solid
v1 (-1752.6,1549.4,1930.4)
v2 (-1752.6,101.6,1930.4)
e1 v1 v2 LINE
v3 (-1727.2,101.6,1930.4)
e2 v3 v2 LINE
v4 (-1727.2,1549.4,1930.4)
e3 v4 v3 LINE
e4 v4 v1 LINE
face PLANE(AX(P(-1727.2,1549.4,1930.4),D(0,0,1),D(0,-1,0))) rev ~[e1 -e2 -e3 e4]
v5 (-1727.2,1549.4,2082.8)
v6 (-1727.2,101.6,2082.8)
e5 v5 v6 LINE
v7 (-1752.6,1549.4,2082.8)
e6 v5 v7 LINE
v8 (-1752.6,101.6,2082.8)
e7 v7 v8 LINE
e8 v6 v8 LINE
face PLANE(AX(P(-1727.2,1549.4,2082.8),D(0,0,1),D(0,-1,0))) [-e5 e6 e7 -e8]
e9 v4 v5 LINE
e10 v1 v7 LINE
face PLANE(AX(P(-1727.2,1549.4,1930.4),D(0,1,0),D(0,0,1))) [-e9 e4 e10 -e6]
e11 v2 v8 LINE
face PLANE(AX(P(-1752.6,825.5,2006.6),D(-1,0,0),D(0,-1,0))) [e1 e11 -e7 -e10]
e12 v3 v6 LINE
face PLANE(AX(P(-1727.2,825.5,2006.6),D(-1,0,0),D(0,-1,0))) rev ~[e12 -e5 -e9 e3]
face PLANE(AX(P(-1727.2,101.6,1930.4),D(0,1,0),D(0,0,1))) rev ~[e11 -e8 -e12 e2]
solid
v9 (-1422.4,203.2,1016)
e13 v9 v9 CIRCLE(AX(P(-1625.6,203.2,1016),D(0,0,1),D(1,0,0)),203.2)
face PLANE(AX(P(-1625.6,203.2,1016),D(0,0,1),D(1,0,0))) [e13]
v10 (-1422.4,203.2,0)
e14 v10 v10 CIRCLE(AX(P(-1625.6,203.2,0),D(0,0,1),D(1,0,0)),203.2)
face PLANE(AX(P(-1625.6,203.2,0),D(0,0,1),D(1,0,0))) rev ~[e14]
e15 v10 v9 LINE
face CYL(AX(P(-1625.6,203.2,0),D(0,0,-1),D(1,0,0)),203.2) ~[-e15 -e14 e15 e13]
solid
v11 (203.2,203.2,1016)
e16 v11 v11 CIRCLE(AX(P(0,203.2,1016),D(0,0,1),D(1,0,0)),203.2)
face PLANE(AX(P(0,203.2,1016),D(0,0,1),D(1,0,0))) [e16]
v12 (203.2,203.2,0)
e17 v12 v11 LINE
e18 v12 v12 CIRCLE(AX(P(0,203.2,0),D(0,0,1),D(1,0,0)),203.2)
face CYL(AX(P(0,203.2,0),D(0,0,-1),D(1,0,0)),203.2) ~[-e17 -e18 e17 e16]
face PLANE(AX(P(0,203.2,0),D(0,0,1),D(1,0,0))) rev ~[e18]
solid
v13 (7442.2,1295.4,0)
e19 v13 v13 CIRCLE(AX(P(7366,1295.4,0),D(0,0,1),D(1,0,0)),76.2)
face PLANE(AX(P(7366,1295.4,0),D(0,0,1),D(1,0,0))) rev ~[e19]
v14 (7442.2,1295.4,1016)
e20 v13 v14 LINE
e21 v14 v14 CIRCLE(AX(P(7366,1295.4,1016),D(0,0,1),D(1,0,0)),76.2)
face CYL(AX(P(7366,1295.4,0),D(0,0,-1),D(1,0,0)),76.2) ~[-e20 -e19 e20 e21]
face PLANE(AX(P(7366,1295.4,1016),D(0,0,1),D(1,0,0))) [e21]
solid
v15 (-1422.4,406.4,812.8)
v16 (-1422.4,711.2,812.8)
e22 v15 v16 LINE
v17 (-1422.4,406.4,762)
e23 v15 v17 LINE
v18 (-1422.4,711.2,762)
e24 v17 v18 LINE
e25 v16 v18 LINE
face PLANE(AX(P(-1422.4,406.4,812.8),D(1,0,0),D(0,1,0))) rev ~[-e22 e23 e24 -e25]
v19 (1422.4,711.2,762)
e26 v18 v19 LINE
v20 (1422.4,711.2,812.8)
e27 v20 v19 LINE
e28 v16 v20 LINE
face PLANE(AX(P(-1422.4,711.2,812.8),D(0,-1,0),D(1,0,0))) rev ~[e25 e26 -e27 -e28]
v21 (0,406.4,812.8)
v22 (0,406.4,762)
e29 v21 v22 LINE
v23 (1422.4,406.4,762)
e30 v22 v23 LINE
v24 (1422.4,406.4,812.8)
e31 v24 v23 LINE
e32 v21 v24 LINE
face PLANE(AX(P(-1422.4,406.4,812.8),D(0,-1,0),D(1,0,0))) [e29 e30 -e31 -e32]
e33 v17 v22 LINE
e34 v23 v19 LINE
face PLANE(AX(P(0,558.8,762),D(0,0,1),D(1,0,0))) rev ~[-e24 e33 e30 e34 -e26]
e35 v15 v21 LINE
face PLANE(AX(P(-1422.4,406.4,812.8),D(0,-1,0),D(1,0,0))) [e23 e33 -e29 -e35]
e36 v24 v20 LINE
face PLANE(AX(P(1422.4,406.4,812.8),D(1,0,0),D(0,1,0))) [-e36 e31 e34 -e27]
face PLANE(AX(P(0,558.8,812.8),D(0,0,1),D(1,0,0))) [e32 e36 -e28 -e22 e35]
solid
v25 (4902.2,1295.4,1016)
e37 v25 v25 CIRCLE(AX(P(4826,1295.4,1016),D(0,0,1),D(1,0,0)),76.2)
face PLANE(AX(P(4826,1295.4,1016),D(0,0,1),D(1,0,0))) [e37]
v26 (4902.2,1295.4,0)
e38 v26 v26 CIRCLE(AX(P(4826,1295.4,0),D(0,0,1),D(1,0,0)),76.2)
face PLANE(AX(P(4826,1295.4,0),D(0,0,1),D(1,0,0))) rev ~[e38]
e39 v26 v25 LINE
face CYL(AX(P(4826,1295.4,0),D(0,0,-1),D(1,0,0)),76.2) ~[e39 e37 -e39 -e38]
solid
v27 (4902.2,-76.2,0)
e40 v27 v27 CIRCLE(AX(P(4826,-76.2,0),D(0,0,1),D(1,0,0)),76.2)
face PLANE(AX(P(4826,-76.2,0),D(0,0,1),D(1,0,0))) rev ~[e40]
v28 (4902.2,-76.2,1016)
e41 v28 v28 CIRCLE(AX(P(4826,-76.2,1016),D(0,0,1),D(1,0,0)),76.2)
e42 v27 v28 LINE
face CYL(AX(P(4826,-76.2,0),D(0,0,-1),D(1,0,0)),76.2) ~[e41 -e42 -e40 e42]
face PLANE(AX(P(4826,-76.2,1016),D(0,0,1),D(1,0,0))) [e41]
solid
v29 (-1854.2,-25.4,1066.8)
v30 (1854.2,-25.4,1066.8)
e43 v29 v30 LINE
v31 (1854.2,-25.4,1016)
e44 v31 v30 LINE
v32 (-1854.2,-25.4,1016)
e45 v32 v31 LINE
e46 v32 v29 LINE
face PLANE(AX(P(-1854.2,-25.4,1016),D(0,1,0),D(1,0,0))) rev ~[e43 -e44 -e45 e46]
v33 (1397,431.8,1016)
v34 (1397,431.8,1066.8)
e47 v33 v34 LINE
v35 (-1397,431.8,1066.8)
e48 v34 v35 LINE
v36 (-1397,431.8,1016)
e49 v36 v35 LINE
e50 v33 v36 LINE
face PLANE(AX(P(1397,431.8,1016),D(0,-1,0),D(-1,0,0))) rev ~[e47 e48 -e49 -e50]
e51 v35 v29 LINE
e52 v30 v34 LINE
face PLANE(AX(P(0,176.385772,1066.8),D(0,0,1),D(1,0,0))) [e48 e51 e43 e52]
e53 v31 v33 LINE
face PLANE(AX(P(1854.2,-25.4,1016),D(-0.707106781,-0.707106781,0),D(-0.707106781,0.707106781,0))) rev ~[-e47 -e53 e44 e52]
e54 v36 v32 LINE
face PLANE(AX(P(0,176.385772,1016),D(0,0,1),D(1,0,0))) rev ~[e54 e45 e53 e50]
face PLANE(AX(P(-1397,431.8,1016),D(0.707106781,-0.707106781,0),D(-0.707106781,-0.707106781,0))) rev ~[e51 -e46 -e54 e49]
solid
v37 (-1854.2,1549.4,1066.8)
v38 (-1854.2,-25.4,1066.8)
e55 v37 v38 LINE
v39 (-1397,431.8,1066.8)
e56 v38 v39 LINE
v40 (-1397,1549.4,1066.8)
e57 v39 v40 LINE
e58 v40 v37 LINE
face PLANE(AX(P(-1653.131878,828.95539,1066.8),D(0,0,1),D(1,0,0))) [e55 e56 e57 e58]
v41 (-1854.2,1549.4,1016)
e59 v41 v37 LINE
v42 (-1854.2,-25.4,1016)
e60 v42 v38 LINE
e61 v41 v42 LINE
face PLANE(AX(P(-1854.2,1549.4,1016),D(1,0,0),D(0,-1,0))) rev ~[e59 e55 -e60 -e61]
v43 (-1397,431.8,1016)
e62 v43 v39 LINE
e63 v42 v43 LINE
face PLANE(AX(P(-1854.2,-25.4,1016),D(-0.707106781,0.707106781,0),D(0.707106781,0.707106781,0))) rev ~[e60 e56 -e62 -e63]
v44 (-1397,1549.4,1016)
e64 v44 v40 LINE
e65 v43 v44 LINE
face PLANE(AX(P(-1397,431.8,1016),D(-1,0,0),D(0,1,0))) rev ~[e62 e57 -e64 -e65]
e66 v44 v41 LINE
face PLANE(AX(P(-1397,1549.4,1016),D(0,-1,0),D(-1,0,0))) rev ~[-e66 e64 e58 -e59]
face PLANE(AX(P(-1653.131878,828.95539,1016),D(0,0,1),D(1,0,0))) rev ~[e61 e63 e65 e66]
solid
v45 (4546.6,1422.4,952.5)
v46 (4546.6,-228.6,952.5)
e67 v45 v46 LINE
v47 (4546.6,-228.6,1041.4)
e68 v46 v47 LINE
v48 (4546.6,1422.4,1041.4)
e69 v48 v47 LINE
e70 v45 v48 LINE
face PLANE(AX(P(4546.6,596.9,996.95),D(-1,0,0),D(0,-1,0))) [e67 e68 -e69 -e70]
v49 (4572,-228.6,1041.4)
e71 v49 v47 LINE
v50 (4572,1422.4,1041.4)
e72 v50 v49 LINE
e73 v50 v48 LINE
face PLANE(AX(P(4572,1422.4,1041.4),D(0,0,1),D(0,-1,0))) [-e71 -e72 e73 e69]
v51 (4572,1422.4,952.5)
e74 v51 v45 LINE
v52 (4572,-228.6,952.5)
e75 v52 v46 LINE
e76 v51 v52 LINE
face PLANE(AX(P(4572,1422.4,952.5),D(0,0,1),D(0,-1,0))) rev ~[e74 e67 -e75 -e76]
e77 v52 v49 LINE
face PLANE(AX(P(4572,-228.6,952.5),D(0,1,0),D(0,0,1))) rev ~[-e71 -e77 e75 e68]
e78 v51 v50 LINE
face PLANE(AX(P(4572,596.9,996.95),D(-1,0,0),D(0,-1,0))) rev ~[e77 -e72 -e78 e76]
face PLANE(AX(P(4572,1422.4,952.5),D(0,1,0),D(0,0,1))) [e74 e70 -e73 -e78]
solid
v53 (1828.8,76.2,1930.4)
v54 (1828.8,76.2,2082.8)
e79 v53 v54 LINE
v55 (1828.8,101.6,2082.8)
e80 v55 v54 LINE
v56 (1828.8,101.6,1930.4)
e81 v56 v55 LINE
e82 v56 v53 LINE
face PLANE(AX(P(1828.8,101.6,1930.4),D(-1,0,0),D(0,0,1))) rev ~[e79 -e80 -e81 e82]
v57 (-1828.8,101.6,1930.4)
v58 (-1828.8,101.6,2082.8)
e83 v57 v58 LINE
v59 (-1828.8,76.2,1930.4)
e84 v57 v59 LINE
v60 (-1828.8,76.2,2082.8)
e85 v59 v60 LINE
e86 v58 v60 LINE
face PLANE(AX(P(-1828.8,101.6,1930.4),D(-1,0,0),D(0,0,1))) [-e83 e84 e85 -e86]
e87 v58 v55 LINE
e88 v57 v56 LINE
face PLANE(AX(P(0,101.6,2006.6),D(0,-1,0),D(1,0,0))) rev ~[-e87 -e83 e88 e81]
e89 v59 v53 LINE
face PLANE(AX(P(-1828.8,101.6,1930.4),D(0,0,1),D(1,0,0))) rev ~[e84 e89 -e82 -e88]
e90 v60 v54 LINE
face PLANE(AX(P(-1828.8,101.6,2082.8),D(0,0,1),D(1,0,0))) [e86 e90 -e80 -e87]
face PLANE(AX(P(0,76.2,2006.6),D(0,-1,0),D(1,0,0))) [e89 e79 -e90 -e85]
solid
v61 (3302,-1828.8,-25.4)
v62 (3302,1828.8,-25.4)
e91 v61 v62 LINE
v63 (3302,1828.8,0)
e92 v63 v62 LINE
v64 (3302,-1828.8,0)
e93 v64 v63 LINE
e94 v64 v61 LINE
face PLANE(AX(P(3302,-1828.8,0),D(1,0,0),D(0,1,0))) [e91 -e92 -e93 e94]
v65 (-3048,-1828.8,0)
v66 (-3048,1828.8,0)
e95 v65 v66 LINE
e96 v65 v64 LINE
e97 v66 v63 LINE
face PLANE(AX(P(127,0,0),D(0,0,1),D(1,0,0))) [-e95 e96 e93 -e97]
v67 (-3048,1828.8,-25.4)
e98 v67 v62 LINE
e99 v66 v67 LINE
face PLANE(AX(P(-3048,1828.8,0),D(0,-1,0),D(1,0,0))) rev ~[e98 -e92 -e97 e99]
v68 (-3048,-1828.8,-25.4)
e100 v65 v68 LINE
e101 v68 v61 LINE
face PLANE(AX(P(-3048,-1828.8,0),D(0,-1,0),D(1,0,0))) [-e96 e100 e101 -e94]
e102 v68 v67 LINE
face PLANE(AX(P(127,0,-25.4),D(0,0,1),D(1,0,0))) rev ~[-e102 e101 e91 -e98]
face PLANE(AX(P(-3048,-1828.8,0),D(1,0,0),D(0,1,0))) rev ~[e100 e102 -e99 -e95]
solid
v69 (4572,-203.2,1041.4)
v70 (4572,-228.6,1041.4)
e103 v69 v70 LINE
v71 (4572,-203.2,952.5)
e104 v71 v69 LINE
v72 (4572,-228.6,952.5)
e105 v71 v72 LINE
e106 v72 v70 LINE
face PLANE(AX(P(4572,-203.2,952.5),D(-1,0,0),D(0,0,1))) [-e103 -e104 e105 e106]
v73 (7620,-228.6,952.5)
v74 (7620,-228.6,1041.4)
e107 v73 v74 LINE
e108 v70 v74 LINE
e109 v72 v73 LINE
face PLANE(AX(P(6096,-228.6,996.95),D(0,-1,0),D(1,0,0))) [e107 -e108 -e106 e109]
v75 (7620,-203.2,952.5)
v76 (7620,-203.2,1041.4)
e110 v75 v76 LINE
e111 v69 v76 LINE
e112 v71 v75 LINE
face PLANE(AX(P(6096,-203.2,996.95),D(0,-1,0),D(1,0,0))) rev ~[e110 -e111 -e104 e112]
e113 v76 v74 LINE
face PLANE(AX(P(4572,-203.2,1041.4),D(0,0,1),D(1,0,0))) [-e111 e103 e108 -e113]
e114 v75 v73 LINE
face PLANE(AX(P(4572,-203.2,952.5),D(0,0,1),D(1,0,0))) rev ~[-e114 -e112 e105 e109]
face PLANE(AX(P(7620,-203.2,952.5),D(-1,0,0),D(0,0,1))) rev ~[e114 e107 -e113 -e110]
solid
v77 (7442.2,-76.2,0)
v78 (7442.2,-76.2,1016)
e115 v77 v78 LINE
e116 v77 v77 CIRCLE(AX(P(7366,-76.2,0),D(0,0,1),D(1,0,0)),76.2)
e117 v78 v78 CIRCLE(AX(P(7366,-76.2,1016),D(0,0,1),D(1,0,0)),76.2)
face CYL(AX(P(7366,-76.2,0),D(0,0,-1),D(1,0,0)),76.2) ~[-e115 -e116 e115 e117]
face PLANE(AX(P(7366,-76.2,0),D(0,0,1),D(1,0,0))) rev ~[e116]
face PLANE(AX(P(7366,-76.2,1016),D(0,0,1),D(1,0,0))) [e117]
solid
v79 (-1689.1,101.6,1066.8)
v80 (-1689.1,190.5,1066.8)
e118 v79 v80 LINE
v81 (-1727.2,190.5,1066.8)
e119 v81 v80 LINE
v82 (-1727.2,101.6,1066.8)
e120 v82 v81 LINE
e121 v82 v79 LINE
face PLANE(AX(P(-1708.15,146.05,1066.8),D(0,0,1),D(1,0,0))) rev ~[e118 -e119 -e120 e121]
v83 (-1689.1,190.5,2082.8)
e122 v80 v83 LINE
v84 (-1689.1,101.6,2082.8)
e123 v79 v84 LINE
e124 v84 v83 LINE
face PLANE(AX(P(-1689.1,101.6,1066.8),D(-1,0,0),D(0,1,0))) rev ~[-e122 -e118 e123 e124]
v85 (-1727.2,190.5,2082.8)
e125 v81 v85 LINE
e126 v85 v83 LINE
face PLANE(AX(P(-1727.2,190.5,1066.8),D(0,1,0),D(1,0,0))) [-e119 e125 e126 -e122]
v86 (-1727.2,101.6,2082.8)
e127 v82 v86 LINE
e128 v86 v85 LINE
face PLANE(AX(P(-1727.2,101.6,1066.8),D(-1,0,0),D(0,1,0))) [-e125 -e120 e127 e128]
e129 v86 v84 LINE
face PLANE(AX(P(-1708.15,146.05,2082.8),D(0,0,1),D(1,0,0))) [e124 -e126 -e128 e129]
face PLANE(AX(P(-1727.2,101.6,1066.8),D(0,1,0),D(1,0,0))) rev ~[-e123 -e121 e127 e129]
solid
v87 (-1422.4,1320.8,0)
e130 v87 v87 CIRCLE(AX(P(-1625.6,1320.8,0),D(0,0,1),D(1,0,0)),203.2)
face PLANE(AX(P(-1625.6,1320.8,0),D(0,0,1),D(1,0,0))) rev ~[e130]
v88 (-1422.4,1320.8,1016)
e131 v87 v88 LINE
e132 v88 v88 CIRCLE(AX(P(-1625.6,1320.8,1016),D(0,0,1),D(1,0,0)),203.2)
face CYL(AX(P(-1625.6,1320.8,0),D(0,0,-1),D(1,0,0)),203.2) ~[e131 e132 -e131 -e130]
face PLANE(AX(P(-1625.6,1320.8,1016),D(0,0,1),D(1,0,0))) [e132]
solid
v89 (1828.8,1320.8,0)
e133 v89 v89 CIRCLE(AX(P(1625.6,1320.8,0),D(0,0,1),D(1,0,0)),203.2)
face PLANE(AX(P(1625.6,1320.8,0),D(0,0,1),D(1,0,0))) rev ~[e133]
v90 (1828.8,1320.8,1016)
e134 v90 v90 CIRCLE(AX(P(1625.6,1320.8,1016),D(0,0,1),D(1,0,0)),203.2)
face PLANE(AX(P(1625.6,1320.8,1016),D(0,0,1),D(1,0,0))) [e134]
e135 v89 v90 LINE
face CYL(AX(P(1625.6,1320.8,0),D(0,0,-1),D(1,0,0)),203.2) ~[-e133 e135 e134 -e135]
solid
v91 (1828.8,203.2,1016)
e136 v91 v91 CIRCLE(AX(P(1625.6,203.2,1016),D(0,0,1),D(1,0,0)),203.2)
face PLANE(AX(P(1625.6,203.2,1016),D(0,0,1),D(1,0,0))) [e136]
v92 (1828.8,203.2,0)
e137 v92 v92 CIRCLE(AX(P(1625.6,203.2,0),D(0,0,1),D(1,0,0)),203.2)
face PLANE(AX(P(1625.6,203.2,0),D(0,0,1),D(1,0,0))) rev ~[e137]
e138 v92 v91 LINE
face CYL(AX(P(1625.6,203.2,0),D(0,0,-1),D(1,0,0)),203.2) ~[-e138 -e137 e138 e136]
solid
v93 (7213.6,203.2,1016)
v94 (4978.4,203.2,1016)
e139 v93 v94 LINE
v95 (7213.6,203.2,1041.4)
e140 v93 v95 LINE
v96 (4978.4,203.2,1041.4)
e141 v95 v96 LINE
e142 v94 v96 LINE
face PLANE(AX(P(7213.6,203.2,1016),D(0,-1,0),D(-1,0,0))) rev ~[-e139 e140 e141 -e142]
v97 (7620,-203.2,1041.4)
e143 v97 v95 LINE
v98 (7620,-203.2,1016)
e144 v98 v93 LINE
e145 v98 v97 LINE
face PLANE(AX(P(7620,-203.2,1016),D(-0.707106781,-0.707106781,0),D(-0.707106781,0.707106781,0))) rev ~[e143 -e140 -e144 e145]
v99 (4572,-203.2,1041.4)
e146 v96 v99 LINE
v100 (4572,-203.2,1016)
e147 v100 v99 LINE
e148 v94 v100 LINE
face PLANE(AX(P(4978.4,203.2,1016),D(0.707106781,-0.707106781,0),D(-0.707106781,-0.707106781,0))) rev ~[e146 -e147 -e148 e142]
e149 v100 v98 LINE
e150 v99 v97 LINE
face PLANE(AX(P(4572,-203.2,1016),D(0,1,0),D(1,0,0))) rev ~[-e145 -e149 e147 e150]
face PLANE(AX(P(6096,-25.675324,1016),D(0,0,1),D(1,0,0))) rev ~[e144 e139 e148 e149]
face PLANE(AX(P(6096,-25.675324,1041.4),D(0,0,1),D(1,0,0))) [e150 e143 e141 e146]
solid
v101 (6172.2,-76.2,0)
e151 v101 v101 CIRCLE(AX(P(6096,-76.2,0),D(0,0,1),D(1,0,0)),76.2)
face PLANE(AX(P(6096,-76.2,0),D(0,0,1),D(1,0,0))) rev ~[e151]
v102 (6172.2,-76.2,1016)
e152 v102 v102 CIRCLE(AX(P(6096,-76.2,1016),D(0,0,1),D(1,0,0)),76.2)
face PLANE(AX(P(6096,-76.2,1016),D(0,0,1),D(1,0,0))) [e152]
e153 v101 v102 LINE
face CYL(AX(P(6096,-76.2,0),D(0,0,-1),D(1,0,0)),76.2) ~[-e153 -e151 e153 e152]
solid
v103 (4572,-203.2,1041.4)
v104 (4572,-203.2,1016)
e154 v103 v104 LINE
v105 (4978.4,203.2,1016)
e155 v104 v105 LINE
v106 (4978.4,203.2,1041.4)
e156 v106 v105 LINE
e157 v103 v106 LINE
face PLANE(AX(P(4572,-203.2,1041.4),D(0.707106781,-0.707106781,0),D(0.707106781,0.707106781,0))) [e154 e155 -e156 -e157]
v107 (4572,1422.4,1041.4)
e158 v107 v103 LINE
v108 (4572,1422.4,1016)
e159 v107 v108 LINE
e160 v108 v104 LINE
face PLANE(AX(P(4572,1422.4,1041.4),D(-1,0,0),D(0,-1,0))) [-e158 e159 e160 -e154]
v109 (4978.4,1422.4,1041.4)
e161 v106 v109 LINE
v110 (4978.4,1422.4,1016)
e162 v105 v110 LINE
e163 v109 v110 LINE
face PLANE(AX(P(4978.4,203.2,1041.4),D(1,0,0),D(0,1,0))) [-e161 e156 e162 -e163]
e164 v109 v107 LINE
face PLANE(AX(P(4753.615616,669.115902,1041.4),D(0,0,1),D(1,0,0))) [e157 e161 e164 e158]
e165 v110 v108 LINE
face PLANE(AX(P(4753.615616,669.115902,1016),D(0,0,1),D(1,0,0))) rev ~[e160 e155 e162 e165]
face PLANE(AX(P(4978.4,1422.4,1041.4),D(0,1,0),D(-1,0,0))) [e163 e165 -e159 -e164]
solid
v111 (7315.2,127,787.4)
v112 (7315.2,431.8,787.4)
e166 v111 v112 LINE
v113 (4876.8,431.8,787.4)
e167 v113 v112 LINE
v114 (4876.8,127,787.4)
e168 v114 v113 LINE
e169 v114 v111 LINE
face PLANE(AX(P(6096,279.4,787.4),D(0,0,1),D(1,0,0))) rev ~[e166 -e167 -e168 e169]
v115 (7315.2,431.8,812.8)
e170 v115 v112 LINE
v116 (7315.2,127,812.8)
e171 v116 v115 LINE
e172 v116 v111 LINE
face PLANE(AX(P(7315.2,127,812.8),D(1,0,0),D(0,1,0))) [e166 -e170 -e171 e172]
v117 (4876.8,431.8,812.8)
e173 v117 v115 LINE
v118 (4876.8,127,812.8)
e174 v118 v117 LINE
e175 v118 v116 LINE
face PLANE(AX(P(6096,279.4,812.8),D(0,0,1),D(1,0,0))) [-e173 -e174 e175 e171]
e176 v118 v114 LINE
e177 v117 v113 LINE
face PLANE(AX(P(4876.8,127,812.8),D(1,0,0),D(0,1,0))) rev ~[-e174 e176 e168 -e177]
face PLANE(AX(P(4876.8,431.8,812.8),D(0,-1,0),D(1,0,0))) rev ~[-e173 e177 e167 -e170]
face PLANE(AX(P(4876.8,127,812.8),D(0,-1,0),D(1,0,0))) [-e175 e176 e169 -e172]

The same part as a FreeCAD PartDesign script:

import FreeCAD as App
import Part
import Sketcher
from FreeCAD import Vector
Q = App.Units.Quantity

doc = App.newDocument("Part")
params = doc.addObject("Spreadsheet::Sheet", "Params")
for row, (alias, value) in enumerate([
    ("sketch1_width", "250 in"),
    ("sketch1_height", "144 in"),
    ("pad1_length", "1 in"),
    ("sketch2_diameter", "16 in"),
    ("pad2_length", "40 in"),
    ("sketch3_width", "112 in"),
    ("sketch3_height", "12 in"),
    ("pad3_length", "2 in"),
    ("sketch4_diameter", "16 in"),
    ("pad4_length", "40 in"),
    ("sketch5_diameter", "16 in"),
    ("pad5_length", "40 in"),
    ("sketch6_diameter", "16 in"),
    ("pad6_length", "40 in"),
    ("sketch7_diameter", "16 in"),
    ("pad7_length", "40 in"),
    ("sketch8_width", "146 in"),
    ("sketch8_width2", "110 in"),
    ("pad8_length", "2 in"),
    ("sketch9_width", "18 in"),
    ("sketch9_height", "44 in"),
    ("sketch9_height2", "62 in"),
    ("pad9_length", "2 in"),
    ("sketch10_width", "1.5 in"),
    ("sketch10_height", "3.5 in"),
    ("pad10_length", "40 in"),
    ("sketch11_width", "144 in"),
    ("sketch11_height", "6 in"),
    ("pad11_length", "1 in"),
    ("sketch12_width", "57 in"),
    ("sketch12_height", "6 in"),
    ("pad12_length", "1 in"),
    ("sketch13_diameter", "6 in"),
    ("pad13_length", "40 in"),
    ("sketch14_diameter", "6 in"),
    ("pad14_length", "40 in"),
    ("sketch15_diameter", "6 in"),
    ("pad15_length", "40 in"),
    ("sketch16_diameter", "6 in"),
    ("pad16_length", "40 in"),
    ("sketch17_diameter", "6 in"),
    ("pad17_length", "40 in"),
    ("sketch18_width", "120 in"),
    ("sketch18_width2", "88 in"),
    ("pad18_length", "1 in"),
    ("sketch19_width", "96 in"),
    ("sketch19_height", "12 in"),
    ("pad19_length", "1 in"),
    ("sketch20_width", "120 in"),
    ("sketch20_height", "3.5 in"),
    ("pad20_length", "1 in"),
    ("sketch21_width", "16 in"),
    ("sketch21_height", "48 in"),
    ("sketch21_height2", "64 in"),
    ("pad21_length", "1 in"),
    ("sketch22_width", "65 in"),
    ("sketch22_height", "3.5 in"),
    ("pad22_length", "1 in"),
], start=1):
    params.set(f"A{row}", alias)
    params.set(f"B{row}", "=" + value)
    params.setAlias(f"B{row}", alias)

body = doc.addObject("PartDesign::Body", "Body")

# Sketch on XY plane
sketch1 = body.newObject("Sketcher::SketchObject", "Sketch")
sketch1.AttachmentSupport = (doc.getObject("XY_Plane"), [""])
sketch1.MapMode = "FlatFace"
sketch1.addGeometry(Part.LineSegment(Vector(-3048, 1828.8, 0), Vector(-3048, -1828.8, 0)), False)
sketch1.addGeometry(Part.LineSegment(Vector(-3048, -1828.8, 0), Vector(3302, -1828.8, 0)), False)
sketch1.addGeometry(Part.LineSegment(Vector(3302, -1828.8, 0), Vector(3302, 1828.8, 0)), False)
sketch1.addGeometry(Part.LineSegment(Vector(3302, 1828.8, 0), Vector(-3048, 1828.8, 0)), False)
sketch1.addConstraint(Sketcher.Constraint("Coincident", 0, 2, 1, 1))
sketch1.addConstraint(Sketcher.Constraint("Coincident", 1, 2, 2, 1))
sketch1.addConstraint(Sketcher.Constraint("Coincident", 2, 2, 3, 1))
sketch1.addConstraint(Sketcher.Constraint("Coincident", 3, 2, 0, 1))
sketch1.addConstraint(Sketcher.Constraint("Vertical", 0))
sketch1.addConstraint(Sketcher.Constraint("Horizontal", 1))
sketch1.addConstraint(Sketcher.Constraint("Vertical", 2))
sketch1.addConstraint(Sketcher.Constraint("Horizontal", 3))
sketch1.addConstraint(Sketcher.Constraint("DistanceX", 1, 1, 1, 2, Q("250 in")))
sketch1.addConstraint(Sketcher.Constraint("DistanceY", 0, 2, 0, 1, Q("144 in")))
sketch1.addConstraint(Sketcher.Constraint("DistanceX", 0, 2, -1, 1, Q("120 in")))
sketch1.addConstraint(Sketcher.Constraint("DistanceY", 0, 2, -1, 1, Q("72 in")))
sketch1.setExpression("Constraints[8]", "Params.sketch1_width")
sketch1.setExpression("Constraints[9]", "Params.sketch1_height")
pad1 = body.newObject("PartDesign::Pad", "Pad")
pad1.Profile = sketch1
pad1.setExpression("Length", "Params.pad1_length")
pad1.Reversed = True
body2 = doc.addObject("PartDesign::Body", "Body001")
body2.AllowCompound = True

# Sketch on XY plane
sketch2 = body2.newObject("Sketcher::SketchObject", "Sketch001")
sketch2.AttachmentSupport = (doc.getObject("XY_Plane001"), [""])
sketch2.MapMode = "FlatFace"
sketch2.addGeometry(Part.Circle(Vector(0, 203.2, 0), Vector(0, 0, 1), 203.2), False)
sketch2.addConstraint(Sketcher.Constraint("PointOnObject", 0, 3, -2))
sketch2.addConstraint(Sketcher.Constraint("Diameter", 0, Q("16 in")))
sketch2.addConstraint(Sketcher.Constraint("DistanceY", -1, 1, 0, 3, Q("8 in")))
sketch2.setExpression("Constraints[1]", "Params.sketch2_diameter")
pad2 = body2.newObject("PartDesign::Pad", "Pad001")
pad2.Profile = sketch2
pad2.setExpression("Length", "Params.pad2_length")

# Sketch on XY plane
sketch3 = body2.newObject("Sketcher::SketchObject", "Sketch002")
sketch3.AttachmentSupport = (doc.getObject("XY_Plane001"), [""])
sketch3.MapMode = "FlatFace"
sketch3.AttachmentOffset = App.Placement(Vector(0, 0, 32 * 25.4), App.Rotation())
sketch3.addGeometry(Part.LineSegment(Vector(-1422.4, 711.2, 0), Vector(-1422.4, 406.4, 0)), False)
sketch3.addGeometry(Part.LineSegment(Vector(-1422.4, 406.4, 0), Vector(1422.4, 406.4, 0)), False)
sketch3.addGeometry(Part.LineSegment(Vector(1422.4, 406.4, 0), Vector(1422.4, 711.2, 0)), False)
sketch3.addGeometry(Part.LineSegment(Vector(1422.4, 711.2, 0), Vector(-1422.4, 711.2, 0)), False)
sketch3.addConstraint(Sketcher.Constraint("Coincident", 0, 2, 1, 1))
sketch3.addConstraint(Sketcher.Constraint("Coincident", 1, 2, 2, 1))
sketch3.addConstraint(Sketcher.Constraint("Coincident", 2, 2, 3, 1))
sketch3.addConstraint(Sketcher.Constraint("Coincident", 3, 2, 0, 1))
sketch3.addConstraint(Sketcher.Constraint("Vertical", 0))
sketch3.addConstraint(Sketcher.Constraint("Horizontal", 1))
sketch3.addConstraint(Sketcher.Constraint("Vertical", 2))
sketch3.addConstraint(Sketcher.Constraint("Horizontal", 3))
sketch3.addConstraint(Sketcher.Constraint("DistanceX", 1, 1, 1, 2, Q("112 in")))
sketch3.addConstraint(Sketcher.Constraint("DistanceY", 0, 2, 0, 1, Q("12 in")))
sketch3.addConstraint(Sketcher.Constraint("DistanceX", 0, 2, -1, 1, Q("56 in")))
sketch3.addConstraint(Sketcher.Constraint("DistanceY", -1, 1, 0, 2, Q("16 in")))
sketch3.setExpression("Constraints[8]", "Params.sketch3_width")
sketch3.setExpression("Constraints[9]", "Params.sketch3_height")
pad3 = body2.newObject("PartDesign::Pad", "Pad002")
pad3.Profile = sketch3
pad3.setExpression("Length", "Params.pad3_length")
pad3.Reversed = True
body3 = doc.addObject("PartDesign::Body", "Body002")

# Sketch on XY plane
sketch4 = body3.newObject("Sketcher::SketchObject", "Sketch003")
sketch4.AttachmentSupport = (doc.getObject("XY_Plane002"), [""])
sketch4.MapMode = "FlatFace"
sketch4.addGeometry(Part.Circle(Vector(1625.6, 203.2, 0), Vector(0, 0, 1), 203.2), False)
sketch4.addConstraint(Sketcher.Constraint("Diameter", 0, Q("16 in")))
sketch4.addConstraint(Sketcher.Constraint("DistanceX", -1, 1, 0, 3, Q("64 in")))
sketch4.addConstraint(Sketcher.Constraint("DistanceY", -1, 1, 0, 3, Q("8 in")))
sketch4.setExpression("Constraints[0]", "Params.sketch4_diameter")
pad4 = body3.newObject("PartDesign::Pad", "Pad003")
pad4.Profile = sketch4
pad4.setExpression("Length", "Params.pad4_length")
body4 = doc.addObject("PartDesign::Body", "Body003")

# Sketch on XY plane
sketch5 = body4.newObject("Sketcher::SketchObject", "Sketch004")
sketch5.AttachmentSupport = (doc.getObject("XY_Plane003"), [""])
sketch5.MapMode = "FlatFace"
sketch5.addGeometry(Part.Circle(Vector(-1625.6, 203.2, 0), Vector(0, 0, 1), 203.2), False)
sketch5.addConstraint(Sketcher.Constraint("Diameter", 0, Q("16 in")))
sketch5.addConstraint(Sketcher.Constraint("DistanceX", 0, 3, -1, 1, Q("64 in")))
sketch5.addConstraint(Sketcher.Constraint("DistanceY", -1, 1, 0, 3, Q("8 in")))
sketch5.setExpression("Constraints[0]", "Params.sketch5_diameter")
pad5 = body4.newObject("PartDesign::Pad", "Pad004")
pad5.Profile = sketch5
pad5.setExpression("Length", "Params.pad5_length")
body5 = doc.addObject("PartDesign::Body", "Body004")

# Sketch on XY plane
sketch6 = body5.newObject("Sketcher::SketchObject", "Sketch005")
sketch6.AttachmentSupport = (doc.getObject("XY_Plane004"), [""])
sketch6.MapMode = "FlatFace"
sketch6.addGeometry(Part.Circle(Vector(-1625.6, 1320.8, 0), Vector(0, 0, 1), 203.2), False)
sketch6.addConstraint(Sketcher.Constraint("Diameter", 0, Q("16 in")))
sketch6.addConstraint(Sketcher.Constraint("DistanceX", 0, 3, -1, 1, Q("64 in")))
sketch6.addConstraint(Sketcher.Constraint("DistanceY", -1, 1, 0, 3, Q("52 in")))
sketch6.setExpression("Constraints[0]", "Params.sketch6_diameter")
pad6 = body5.newObject("PartDesign::Pad", "Pad005")
pad6.Profile = sketch6
pad6.setExpression("Length", "Params.pad6_length")
body6 = doc.addObject("PartDesign::Body", "Body005")

# Sketch on XY plane
sketch7 = body6.newObject("Sketcher::SketchObject", "Sketch006")
sketch7.AttachmentSupport = (doc.getObject("XY_Plane005"), [""])
sketch7.MapMode = "FlatFace"
sketch7.addGeometry(Part.Circle(Vector(1625.6, 1320.8, 0), Vector(0, 0, 1), 203.2), False)
sketch7.addConstraint(Sketcher.Constraint("Diameter", 0, Q("16 in")))
sketch7.addConstraint(Sketcher.Constraint("DistanceX", -1, 1, 0, 3, Q("64 in")))
sketch7.addConstraint(Sketcher.Constraint("DistanceY", -1, 1, 0, 3, Q("52 in")))
sketch7.setExpression("Constraints[0]", "Params.sketch7_diameter")
pad7 = body6.newObject("PartDesign::Pad", "Pad006")
pad7.Profile = sketch7
pad7.setExpression("Length", "Params.pad7_length")
body7 = doc.addObject("PartDesign::Body", "Body006")

# Sketch on XY plane
sketch8 = body7.newObject("Sketcher::SketchObject", "Sketch007")
sketch8.AttachmentSupport = (doc.getObject("XY_Plane006"), [""])
sketch8.MapMode = "FlatFace"
sketch8.AttachmentOffset = App.Placement(Vector(0, 0, 40 * 25.4), App.Rotation())
sketch8.addGeometry(Part.LineSegment(Vector(-1397, 431.8, 0), Vector(-1854.2, -25.4, 0)), False)
sketch8.addGeometry(Part.LineSegment(Vector(-1854.2, -25.4, 0), Vector(1854.2, -25.4, 0)), False)
sketch8.addGeometry(Part.LineSegment(Vector(1854.2, -25.4, 0), Vector(1397, 431.8, 0)), False)
sketch8.addGeometry(Part.LineSegment(Vector(1397, 431.8, 0), Vector(-1397, 431.8, 0)), False)
sketch8.addConstraint(Sketcher.Constraint("Coincident", 0, 2, 1, 1))
sketch8.addConstraint(Sketcher.Constraint("Coincident", 1, 2, 2, 1))
sketch8.addConstraint(Sketcher.Constraint("Coincident", 2, 2, 3, 1))
sketch8.addConstraint(Sketcher.Constraint("Coincident", 3, 2, 0, 1))
sketch8.addConstraint(Sketcher.Constraint("Horizontal", 1))
sketch8.addConstraint(Sketcher.Constraint("Horizontal", 3))
sketch8.addConstraint(Sketcher.Constraint("Perpendicular", 0, 2))
sketch8.addConstraint(Sketcher.Constraint("Equal", 0, 2))
sketch8.addConstraint(Sketcher.Constraint("DistanceX", 1, 1, 1, 2, Q("146 in")))
sketch8.addConstraint(Sketcher.Constraint("DistanceX", 3, 2, 3, 1, Q("110 in")))
sketch8.addConstraint(Sketcher.Constraint("DistanceX", 0, 2, -1, 1, Q("73 in")))
sketch8.addConstraint(Sketcher.Constraint("DistanceY", 0, 2, -1, 1, Q("1 in")))
sketch8.setExpression("Constraints[8]", "Params.sketch8_width")
sketch8.setExpression("Constraints[9]", "Params.sketch8_width2")
pad8 = body7.newObject("PartDesign::Pad", "Pad007")
pad8.Profile = sketch8
pad8.setExpression("Length", "Params.pad8_length")
body8 = doc.addObject("PartDesign::Body", "Body007")

# Sketch on XY plane
sketch9 = body8.newObject("Sketcher::SketchObject", "Sketch008")
sketch9.AttachmentSupport = (doc.getObject("XY_Plane007"), [""])
sketch9.MapMode = "FlatFace"
sketch9.AttachmentOffset = App.Placement(Vector(0, 0, 40 * 25.4), App.Rotation())
sketch9.addGeometry(Part.LineSegment(Vector(-1854.2, -25.4, 0), Vector(-1397, 431.8, 0)), False)
sketch9.addGeometry(Part.LineSegment(Vector(-1397, 431.8, 0), Vector(-1397, 1549.4, 0)), False)
sketch9.addGeometry(Part.LineSegment(Vector(-1397, 1549.4, 0), Vector(-1854.2, 1549.4, 0)), False)
sketch9.addGeometry(Part.LineSegment(Vector(-1854.2, 1549.4, 0), Vector(-1854.2, -25.4, 0)), False)
sketch9.addConstraint(Sketcher.Constraint("Coincident", 0, 2, 1, 1))
sketch9.addConstraint(Sketcher.Constraint("Coincident", 1, 2, 2, 1))
sketch9.addConstraint(Sketcher.Constraint("Coincident", 2, 2, 3, 1))
sketch9.addConstraint(Sketcher.Constraint("Coincident", 3, 2, 0, 1))
sketch9.addConstraint(Sketcher.Constraint("Vertical", 1))
sketch9.addConstraint(Sketcher.Constraint("Horizontal", 2))
sketch9.addConstraint(Sketcher.Constraint("Vertical", 3))
sketch9.addConstraint(Sketcher.Constraint("DistanceX", 2, 2, 2, 1, Q("18 in")))
sketch9.addConstraint(Sketcher.Constraint("DistanceY", 1, 1, 1, 2, Q("44 in")))
sketch9.addConstraint(Sketcher.Constraint("DistanceY", 3, 2, 3, 1, Q("62 in")))
sketch9.addConstraint(Sketcher.Constraint("DistanceX", 0, 2, -1, 1, Q("55 in")))
sketch9.addConstraint(Sketcher.Constraint("DistanceY", -1, 1, 0, 2, Q("17 in")))
sketch9.setExpression("Constraints[7]", "Params.sketch9_width")
sketch9.setExpression("Constraints[8]", "Params.sketch9_height")
sketch9.setExpression("Constraints[9]", "Params.sketch9_height2")
pad9 = body8.newObject("PartDesign::Pad", "Pad008")
pad9.Profile = sketch9
pad9.setExpression("Length", "Params.pad9_length")
body9 = doc.addObject("PartDesign::Body", "Body008")

# Sketch on XY plane
sketch10 = body9.newObject("Sketcher::SketchObject", "Sketch009")
sketch10.AttachmentSupport = (doc.getObject("XY_Plane008"), [""])
sketch10.MapMode = "FlatFace"
sketch10.AttachmentOffset = App.Placement(Vector(0, 0, 42 * 25.4), App.Rotation())
sketch10.addGeometry(Part.LineSegment(Vector(-1727.2, 190.5, 0), Vector(-1727.2, 101.6, 0)), False)
sketch10.addGeometry(Part.LineSegment(Vector(-1727.2, 101.6, 0), Vector(-1689.1, 101.6, 0)), False)
sketch10.addGeometry(Part.LineSegment(Vector(-1689.1, 101.6, 0), Vector(-1689.1, 190.5, 0)), False)
sketch10.addGeometry(Part.LineSegment(Vector(-1689.1, 190.5, 0), Vector(-1727.2, 190.5, 0)), False)
sketch10.addConstraint(Sketcher.Constraint("Coincident", 0, 2, 1, 1))
sketch10.addConstraint(Sketcher.Constraint("Coincident", 1, 2, 2, 1))
sketch10.addConstraint(Sketcher.Constraint("Coincident", 2, 2, 3, 1))
sketch10.addConstraint(Sketcher.Constraint("Coincident", 3, 2, 0, 1))
sketch10.addConstraint(Sketcher.Constraint("Vertical", 0))
sketch10.addConstraint(Sketcher.Constraint("Horizontal", 1))
sketch10.addConstraint(Sketcher.Constraint("Vertical", 2))
sketch10.addConstraint(Sketcher.Constraint("Horizontal", 3))
sketch10.addConstraint(Sketcher.Constraint("DistanceX", 1, 1, 1, 2, Q("1.5 in")))
sketch10.addConstraint(Sketcher.Constraint("DistanceY", 0, 2, 0, 1, Q("3.5 in")))
sketch10.addConstraint(Sketcher.Constraint("DistanceX", 0, 2, -1, 1, Q("68 in")))
sketch10.addConstraint(Sketcher.Constraint("DistanceY", -1, 1, 0, 2, Q("4 in")))
sketch10.setExpression("Constraints[8]", "Params.sketch10_width")
sketch10.setExpression("Constraints[9]", "Params.sketch10_height")
pad10 = body9.newObject("PartDesign::Pad", "Pad009")
pad10.Profile = sketch10
pad10.setExpression("Length", "Params.pad10_length")
body10 = doc.addObject("PartDesign::Body", "Body009")

# Sketch on XZ plane
sketch11 = body10.newObject("Sketcher::SketchObject", "Sketch010")
sketch11.AttachmentSupport = (doc.getObject("XZ_Plane009"), [""])
sketch11.MapMode = "FlatFace"
sketch11.AttachmentOffset = App.Placement(Vector(0, 0, -4 * 25.4), App.Rotation())
sketch11.addGeometry(Part.LineSegment(Vector(-1828.8, 2082.8, 0), Vector(-1828.8, 1930.4, 0)), False)
sketch11.addGeometry(Part.LineSegment(Vector(-1828.8, 1930.4, 0), Vector(1828.8, 1930.4, 0)), False)
sketch11.addGeometry(Part.LineSegment(Vector(1828.8, 1930.4, 0), Vector(1828.8, 2082.8, 0)), False)
sketch11.addGeometry(Part.LineSegment(Vector(1828.8, 2082.8, 0), Vector(-1828.8, 2082.8, 0)), False)
sketch11.addConstraint(Sketcher.Constraint("Coincident", 0, 2, 1, 1))
sketch11.addConstraint(Sketcher.Constraint("Coincident", 1, 2, 2, 1))
sketch11.addConstraint(Sketcher.Constraint("Coincident", 2, 2, 3, 1))
sketch11.addConstraint(Sketcher.Constraint("Coincident", 3, 2, 0, 1))
sketch11.addConstraint(Sketcher.Constraint("Vertical", 0))
sketch11.addConstraint(Sketcher.Constraint("Horizontal", 1))
sketch11.addConstraint(Sketcher.Constraint("Vertical", 2))
sketch11.addConstraint(Sketcher.Constraint("Horizontal", 3))
sketch11.addConstraint(Sketcher.Constraint("DistanceX", 1, 1, 1, 2, Q("144 in")))
sketch11.addConstraint(Sketcher.Constraint("DistanceY", 0, 2, 0, 1, Q("6 in")))
sketch11.addConstraint(Sketcher.Constraint("DistanceX", 0, 2, -1, 1, Q("72 in")))
sketch11.addConstraint(Sketcher.Constraint("DistanceY", -1, 1, 0, 2, Q("76 in")))
sketch11.setExpression("Constraints[8]", "Params.sketch11_width")
sketch11.setExpression("Constraints[9]", "Params.sketch11_height")
pad11 = body10.newObject("PartDesign::Pad", "Pad010")
pad11.Profile = sketch11
pad11.setExpression("Length", "Params.pad11_length")
body11 = doc.addObject("PartDesign::Body", "Body010")

# Sketch on YZ plane
sketch12 = body11.newObject("Sketcher::SketchObject", "Sketch011")
sketch12.AttachmentSupport = (doc.getObject("YZ_Plane010"), [""])
sketch12.MapMode = "FlatFace"
sketch12.AttachmentOffset = App.Placement(Vector(0, 0, -68 * 25.4), App.Rotation())
sketch12.addGeometry(Part.LineSegment(Vector(1549.4, 2082.8, 0), Vector(1549.4, 1930.4, 0)), False)
sketch12.addGeometry(Part.LineSegment(Vector(1549.4, 1930.4, 0), Vector(101.6, 1930.4, 0)), False)
sketch12.addGeometry(Part.LineSegment(Vector(101.6, 1930.4, 0), Vector(101.6, 2082.8, 0)), False)
sketch12.addGeometry(Part.LineSegment(Vector(101.6, 2082.8, 0), Vector(1549.4, 2082.8, 0)), False)
sketch12.addConstraint(Sketcher.Constraint("Coincident", 0, 2, 1, 1))
sketch12.addConstraint(Sketcher.Constraint("Coincident", 1, 2, 2, 1))
sketch12.addConstraint(Sketcher.Constraint("Coincident", 2, 2, 3, 1))
sketch12.addConstraint(Sketcher.Constraint("Coincident", 3, 2, 0, 1))
sketch12.addConstraint(Sketcher.Constraint("Vertical", 0))
sketch12.addConstraint(Sketcher.Constraint("Horizontal", 1))
sketch12.addConstraint(Sketcher.Constraint("Vertical", 2))
sketch12.addConstraint(Sketcher.Constraint("Horizontal", 3))
sketch12.addConstraint(Sketcher.Constraint("DistanceX", 1, 2, 1, 1, Q("57 in")))
sketch12.addConstraint(Sketcher.Constraint("DistanceY", 0, 2, 0, 1, Q("6 in")))
sketch12.addConstraint(Sketcher.Constraint("DistanceX", -1, 1, 0, 2, Q("61 in")))
sketch12.addConstraint(Sketcher.Constraint("DistanceY", -1, 1, 0, 2, Q("76 in")))
sketch12.setExpression("Constraints[8]", "Params.sketch12_width")
sketch12.setExpression("Constraints[9]", "Params.sketch12_height")
pad12 = body11.newObject("PartDesign::Pad", "Pad011")
pad12.Profile = sketch12
pad12.setExpression("Length", "Params.pad12_length")
pad12.Reversed = True
body12 = doc.addObject("PartDesign::Body", "Body011")

# Sketch on XY plane
sketch13 = body12.newObject("Sketcher::SketchObject", "Sketch012")
sketch13.AttachmentSupport = (doc.getObject("XY_Plane011"), [""])
sketch13.MapMode = "FlatFace"
sketch13.addGeometry(Part.Circle(Vector(6096, -76.2, 0), Vector(0, 0, 1), 76.2), False)
sketch13.addConstraint(Sketcher.Constraint("Diameter", 0, Q("6 in")))
sketch13.addConstraint(Sketcher.Constraint("DistanceX", -1, 1, 0, 3, Q("240 in")))
sketch13.addConstraint(Sketcher.Constraint("DistanceY", 0, 3, -1, 1, Q("3 in")))
sketch13.setExpression("Constraints[0]", "Params.sketch13_diameter")
pad13 = body12.newObject("PartDesign::Pad", "Pad012")
pad13.Profile = sketch13
pad13.setExpression("Length", "Params.pad13_length")
body13 = doc.addObject("PartDesign::Body", "Body012")

# Sketch on XY plane
sketch14 = body13.newObject("Sketcher::SketchObject", "Sketch013")
sketch14.AttachmentSupport = (doc.getObject("XY_Plane012"), [""])
sketch14.MapMode = "FlatFace"
sketch14.addGeometry(Part.Circle(Vector(4826, -76.2, 0), Vector(0, 0, 1), 76.2), False)
sketch14.addConstraint(Sketcher.Constraint("Diameter", 0, Q("6 in")))
sketch14.addConstraint(Sketcher.Constraint("DistanceX", -1, 1, 0, 3, Q("190 in")))
sketch14.addConstraint(Sketcher.Constraint("DistanceY", 0, 3, -1, 1, Q("3 in")))
sketch14.setExpression("Constraints[0]", "Params.sketch14_diameter")
pad14 = body13.newObject("PartDesign::Pad", "Pad013")
pad14.Profile = sketch14
pad14.setExpression("Length", "Params.pad14_length")
body14 = doc.addObject("PartDesign::Body", "Body013")

# Sketch on XY plane
sketch15 = body14.newObject("Sketcher::SketchObject", "Sketch014")
sketch15.AttachmentSupport = (doc.getObject("XY_Plane013"), [""])
sketch15.MapMode = "FlatFace"
sketch15.addGeometry(Part.Circle(Vector(7366, -76.2, 0), Vector(0, 0, 1), 76.2), False)
sketch15.addConstraint(Sketcher.Constraint("Diameter", 0, Q("6 in")))
sketch15.addConstraint(Sketcher.Constraint("DistanceX", -1, 1, 0, 3, Q("290 in")))
sketch15.addConstraint(Sketcher.Constraint("DistanceY", 0, 3, -1, 1, Q("3 in")))
sketch15.setExpression("Constraints[0]", "Params.sketch15_diameter")
pad15 = body14.newObject("PartDesign::Pad", "Pad014")
pad15.Profile = sketch15
pad15.setExpression("Length", "Params.pad15_length")
body15 = doc.addObject("PartDesign::Body", "Body014")

# Sketch on XY plane
sketch16 = body15.newObject("Sketcher::SketchObject", "Sketch015")
sketch16.AttachmentSupport = (doc.getObject("XY_Plane014"), [""])
sketch16.MapMode = "FlatFace"
sketch16.addGeometry(Part.Circle(Vector(4826, 1295.4, 0), Vector(0, 0, 1), 76.2), False)
sketch16.addConstraint(Sketcher.Constraint("Diameter", 0, Q("6 in")))
sketch16.addConstraint(Sketcher.Constraint("DistanceX", -1, 1, 0, 3, Q("190 in")))
sketch16.addConstraint(Sketcher.Constraint("DistanceY", -1, 1, 0, 3, Q("51 in")))
sketch16.setExpression("Constraints[0]", "Params.sketch16_diameter")
pad16 = body15.newObject("PartDesign::Pad", "Pad015")
pad16.Profile = sketch16
pad16.setExpression("Length", "Params.pad16_length")
body16 = doc.addObject("PartDesign::Body", "Body015")

# Sketch on XY plane
sketch17 = body16.newObject("Sketcher::SketchObject", "Sketch016")
sketch17.AttachmentSupport = (doc.getObject("XY_Plane015"), [""])
sketch17.MapMode = "FlatFace"
sketch17.addGeometry(Part.Circle(Vector(7366, 1295.4, 0), Vector(0, 0, 1), 76.2), False)
sketch17.addConstraint(Sketcher.Constraint("Diameter", 0, Q("6 in")))
sketch17.addConstraint(Sketcher.Constraint("DistanceX", -1, 1, 0, 3, Q("290 in")))
sketch17.addConstraint(Sketcher.Constraint("DistanceY", -1, 1, 0, 3, Q("51 in")))
sketch17.setExpression("Constraints[0]", "Params.sketch17_diameter")
pad17 = body16.newObject("PartDesign::Pad", "Pad016")
pad17.Profile = sketch17
pad17.setExpression("Length", "Params.pad17_length")
body17 = doc.addObject("PartDesign::Body", "Body016")

# Sketch on XY plane
sketch18 = body17.newObject("Sketcher::SketchObject", "Sketch017")
sketch18.AttachmentSupport = (doc.getObject("XY_Plane016"), [""])
sketch18.MapMode = "FlatFace"
sketch18.AttachmentOffset = App.Placement(Vector(0, 0, 40 * 25.4), App.Rotation())
sketch18.addGeometry(Part.LineSegment(Vector(4978.4, 203.2, 0), Vector(4572, -203.2, 0)), False)
sketch18.addGeometry(Part.LineSegment(Vector(4572, -203.2, 0), Vector(7620, -203.2, 0)), False)
sketch18.addGeometry(Part.LineSegment(Vector(7620, -203.2, 0), Vector(7213.6, 203.2, 0)), False)
sketch18.addGeometry(Part.LineSegment(Vector(7213.6, 203.2, 0), Vector(4978.4, 203.2, 0)), False)
sketch18.addConstraint(Sketcher.Constraint("Coincident", 0, 2, 1, 1))
sketch18.addConstraint(Sketcher.Constraint("Coincident", 1, 2, 2, 1))
sketch18.addConstraint(Sketcher.Constraint("Coincident", 2, 2, 3, 1))
sketch18.addConstraint(Sketcher.Constraint("Coincident", 3, 2, 0, 1))
sketch18.addConstraint(Sketcher.Constraint("Horizontal", 1))
sketch18.addConstraint(Sketcher.Constraint("Horizontal", 3))
sketch18.addConstraint(Sketcher.Constraint("Perpendicular", 0, 2))
sketch18.addConstraint(Sketcher.Constraint("Equal", 0, 2))
sketch18.addConstraint(Sketcher.Constraint("DistanceX", 1, 1, 1, 2, Q("120 in")))
sketch18.addConstraint(Sketcher.Constraint("DistanceX", 3, 2, 3, 1, Q("88 in")))
sketch18.addConstraint(Sketcher.Constraint("DistanceX", -1, 1, 0, 2, Q("180 in")))
sketch18.addConstraint(Sketcher.Constraint("DistanceY", 0, 2, -1, 1, Q("8 in")))
sketch18.setExpression("Constraints[8]", "Params.sketch18_width")
sketch18.setExpression("Constraints[9]", "Params.sketch18_width2")
pad18 = body17.newObject("PartDesign::Pad", "Pad017")
pad18.Profile = sketch18
pad18.setExpression("Length", "Params.pad18_length")
body18 = doc.addObject("PartDesign::Body", "Body017")

# Sketch on XY plane
sketch19 = body18.newObject("Sketcher::SketchObject", "Sketch018")
sketch19.AttachmentSupport = (doc.getObject("XY_Plane017"), [""])
sketch19.MapMode = "FlatFace"
sketch19.AttachmentOffset = App.Placement(Vector(0, 0, 32 * 25.4), App.Rotation())
sketch19.addGeometry(Part.LineSegment(Vector(4876.8, 431.8, 0), Vector(4876.8, 127, 0)), False)
sketch19.addGeometry(Part.LineSegment(Vector(4876.8, 127, 0), Vector(7315.2, 127, 0)), False)
sketch19.addGeometry(Part.LineSegment(Vector(7315.2, 127, 0), Vector(7315.2, 431.8, 0)), False)
sketch19.addGeometry(Part.LineSegment(Vector(7315.2, 431.8, 0), Vector(4876.8, 431.8, 0)), False)
sketch19.addConstraint(Sketcher.Constraint("Coincident", 0, 2, 1, 1))
sketch19.addConstraint(Sketcher.Constraint("Coincident", 1, 2, 2, 1))
sketch19.addConstraint(Sketcher.Constraint("Coincident", 2, 2, 3, 1))
sketch19.addConstraint(Sketcher.Constraint("Coincident", 3, 2, 0, 1))
sketch19.addConstraint(Sketcher.Constraint("Vertical", 0))
sketch19.addConstraint(Sketcher.Constraint("Horizontal", 1))
sketch19.addConstraint(Sketcher.Constraint("Vertical", 2))
sketch19.addConstraint(Sketcher.Constraint("Horizontal", 3))
sketch19.addConstraint(Sketcher.Constraint("DistanceX", 1, 1, 1, 2, Q("96 in")))
sketch19.addConstraint(Sketcher.Constraint("DistanceY", 0, 2, 0, 1, Q("12 in")))
sketch19.addConstraint(Sketcher.Constraint("DistanceX", -1, 1, 0, 2, Q("192 in")))
sketch19.addConstraint(Sketcher.Constraint("DistanceY", -1, 1, 0, 2, Q("5 in")))
sketch19.setExpression("Constraints[8]", "Params.sketch19_width")
sketch19.setExpression("Constraints[9]", "Params.sketch19_height")
pad19 = body18.newObject("PartDesign::Pad", "Pad018")
pad19.Profile = sketch19
pad19.setExpression("Length", "Params.pad19_length")
pad19.Reversed = True
body19 = doc.addObject("PartDesign::Body", "Body018")

# Sketch on XZ plane
sketch20 = body19.newObject("Sketcher::SketchObject", "Sketch019")
sketch20.AttachmentSupport = (doc.getObject("XZ_Plane018"), [""])
sketch20.MapMode = "FlatFace"
sketch20.AttachmentOffset = App.Placement(Vector(0, 0, 8 * 25.4), App.Rotation())
sketch20.addGeometry(Part.LineSegment(Vector(4572, 1041.4, 0), Vector(4572, 952.5, 0)), False)
sketch20.addGeometry(Part.LineSegment(Vector(4572, 952.5, 0), Vector(7620, 952.5, 0)), False)
sketch20.addGeometry(Part.LineSegment(Vector(7620, 952.5, 0), Vector(7620, 1041.4, 0)), False)
sketch20.addGeometry(Part.LineSegment(Vector(7620, 1041.4, 0), Vector(4572, 1041.4, 0)), False)
sketch20.addConstraint(Sketcher.Constraint("Coincident", 0, 2, 1, 1))
sketch20.addConstraint(Sketcher.Constraint("Coincident", 1, 2, 2, 1))
sketch20.addConstraint(Sketcher.Constraint("Coincident", 2, 2, 3, 1))
sketch20.addConstraint(Sketcher.Constraint("Coincident", 3, 2, 0, 1))
sketch20.addConstraint(Sketcher.Constraint("Vertical", 0))
sketch20.addConstraint(Sketcher.Constraint("Horizontal", 1))
sketch20.addConstraint(Sketcher.Constraint("Vertical", 2))
sketch20.addConstraint(Sketcher.Constraint("Horizontal", 3))
sketch20.addConstraint(Sketcher.Constraint("DistanceX", 1, 1, 1, 2, Q("120 in")))
sketch20.addConstraint(Sketcher.Constraint("DistanceY", 0, 2, 0, 1, Q("3.5 in")))
sketch20.addConstraint(Sketcher.Constraint("DistanceX", -1, 1, 0, 2, Q("180 in")))
sketch20.addConstraint(Sketcher.Constraint("DistanceY", -1, 1, 2, 2, Q("41 in")))
sketch20.setExpression("Constraints[8]", "Params.sketch20_width")
sketch20.setExpression("Constraints[9]", "Params.sketch20_height")
pad20 = body19.newObject("PartDesign::Pad", "Pad019")
pad20.Profile = sketch20
pad20.setExpression("Length", "Params.pad20_length")
body20 = doc.addObject("PartDesign::Body", "Body019")

# Sketch on XY plane
sketch21 = body20.newObject("Sketcher::SketchObject", "Sketch020")
sketch21.AttachmentSupport = (doc.getObject("XY_Plane019"), [""])
sketch21.MapMode = "FlatFace"
sketch21.AttachmentOffset = App.Placement(Vector(0, 0, 41 * 25.4), App.Rotation())
sketch21.addGeometry(Part.LineSegment(Vector(4572, -203.2, 0), Vector(4978.4, 203.2, 0)), False)
sketch21.addGeometry(Part.LineSegment(Vector(4978.4, 203.2, 0), Vector(4978.4, 1422.4, 0)), False)
sketch21.addGeometry(Part.LineSegment(Vector(4978.4, 1422.4, 0), Vector(4572, 1422.4, 0)), False)
sketch21.addGeometry(Part.LineSegment(Vector(4572, 1422.4, 0), Vector(4572, -203.2, 0)), False)
sketch21.addConstraint(Sketcher.Constraint("Coincident", 0, 2, 1, 1))
sketch21.addConstraint(Sketcher.Constraint("Coincident", 1, 2, 2, 1))
sketch21.addConstraint(Sketcher.Constraint("Coincident", 2, 2, 3, 1))
sketch21.addConstraint(Sketcher.Constraint("Coincident", 3, 2, 0, 1))
sketch21.addConstraint(Sketcher.Constraint("Vertical", 1))
sketch21.addConstraint(Sketcher.Constraint("Horizontal", 2))
sketch21.addConstraint(Sketcher.Constraint("Vertical", 3))
sketch21.addConstraint(Sketcher.Constraint("DistanceX", 2, 2, 2, 1, Q("16 in")))
sketch21.addConstraint(Sketcher.Constraint("DistanceY", 1, 1, 1, 2, Q("48 in")))
sketch21.addConstraint(Sketcher.Constraint("DistanceY", 3, 2, 3, 1, Q("64 in")))
sketch21.addConstraint(Sketcher.Constraint("DistanceX", -1, 1, 0, 2, Q("196 in")))
sketch21.addConstraint(Sketcher.Constraint("DistanceY", -1, 1, 0, 2, Q("8 in")))
sketch21.setExpression("Constraints[7]", "Params.sketch21_width")
sketch21.setExpression("Constraints[8]", "Params.sketch21_height")
sketch21.setExpression("Constraints[9]", "Params.sketch21_height2")
pad21 = body20.newObject("PartDesign::Pad", "Pad020")
pad21.Profile = sketch21
pad21.setExpression("Length", "Params.pad21_length")
pad21.Reversed = True
body21 = doc.addObject("PartDesign::Body", "Body020")

# Sketch on YZ plane
sketch22 = body21.newObject("Sketcher::SketchObject", "Sketch021")
sketch22.AttachmentSupport = (doc.getObject("YZ_Plane020"), [""])
sketch22.MapMode = "FlatFace"
sketch22.AttachmentOffset = App.Placement(Vector(0, 0, 180 * 25.4), App.Rotation())
sketch22.addGeometry(Part.LineSegment(Vector(1422.4, 1041.4, 0), Vector(1422.4, 952.5, 0)), False)
sketch22.addGeometry(Part.LineSegment(Vector(1422.4, 952.5, 0), Vector(-228.6, 952.5, 0)), False)
sketch22.addGeometry(Part.LineSegment(Vector(-228.6, 952.5, 0), Vector(-228.6, 1041.4, 0)), False)
sketch22.addGeometry(Part.LineSegment(Vector(-228.6, 1041.4, 0), Vector(1422.4, 1041.4, 0)), False)
sketch22.addConstraint(Sketcher.Constraint("Coincident", 0, 2, 1, 1))
sketch22.addConstraint(Sketcher.Constraint("Coincident", 1, 2, 2, 1))
sketch22.addConstraint(Sketcher.Constraint("Coincident", 2, 2, 3, 1))
sketch22.addConstraint(Sketcher.Constraint("Coincident", 3, 2, 0, 1))
sketch22.addConstraint(Sketcher.Constraint("Vertical", 0))
sketch22.addConstraint(Sketcher.Constraint("Horizontal", 1))
sketch22.addConstraint(Sketcher.Constraint("Vertical", 2))
sketch22.addConstraint(Sketcher.Constraint("Horizontal", 3))
sketch22.addConstraint(Sketcher.Constraint("DistanceX", 1, 2, 1, 1, Q("65 in")))
sketch22.addConstraint(Sketcher.Constraint("DistanceY", 0, 2, 0, 1, Q("3.5 in")))
sketch22.addConstraint(Sketcher.Constraint("DistanceX", -1, 1, 0, 2, Q("56 in")))
sketch22.addConstraint(Sketcher.Constraint("DistanceY", -1, 1, 2, 2, Q("41 in")))
sketch22.setExpression("Constraints[8]", "Params.sketch22_width")
sketch22.setExpression("Constraints[9]", "Params.sketch22_height")
pad22 = body21.newObject("PartDesign::Pad", "Pad021")
pad22.Profile = sketch22
pad22.setExpression("Length", "Params.pad22_length")
pad22.Reversed = True

doc.recompute()
